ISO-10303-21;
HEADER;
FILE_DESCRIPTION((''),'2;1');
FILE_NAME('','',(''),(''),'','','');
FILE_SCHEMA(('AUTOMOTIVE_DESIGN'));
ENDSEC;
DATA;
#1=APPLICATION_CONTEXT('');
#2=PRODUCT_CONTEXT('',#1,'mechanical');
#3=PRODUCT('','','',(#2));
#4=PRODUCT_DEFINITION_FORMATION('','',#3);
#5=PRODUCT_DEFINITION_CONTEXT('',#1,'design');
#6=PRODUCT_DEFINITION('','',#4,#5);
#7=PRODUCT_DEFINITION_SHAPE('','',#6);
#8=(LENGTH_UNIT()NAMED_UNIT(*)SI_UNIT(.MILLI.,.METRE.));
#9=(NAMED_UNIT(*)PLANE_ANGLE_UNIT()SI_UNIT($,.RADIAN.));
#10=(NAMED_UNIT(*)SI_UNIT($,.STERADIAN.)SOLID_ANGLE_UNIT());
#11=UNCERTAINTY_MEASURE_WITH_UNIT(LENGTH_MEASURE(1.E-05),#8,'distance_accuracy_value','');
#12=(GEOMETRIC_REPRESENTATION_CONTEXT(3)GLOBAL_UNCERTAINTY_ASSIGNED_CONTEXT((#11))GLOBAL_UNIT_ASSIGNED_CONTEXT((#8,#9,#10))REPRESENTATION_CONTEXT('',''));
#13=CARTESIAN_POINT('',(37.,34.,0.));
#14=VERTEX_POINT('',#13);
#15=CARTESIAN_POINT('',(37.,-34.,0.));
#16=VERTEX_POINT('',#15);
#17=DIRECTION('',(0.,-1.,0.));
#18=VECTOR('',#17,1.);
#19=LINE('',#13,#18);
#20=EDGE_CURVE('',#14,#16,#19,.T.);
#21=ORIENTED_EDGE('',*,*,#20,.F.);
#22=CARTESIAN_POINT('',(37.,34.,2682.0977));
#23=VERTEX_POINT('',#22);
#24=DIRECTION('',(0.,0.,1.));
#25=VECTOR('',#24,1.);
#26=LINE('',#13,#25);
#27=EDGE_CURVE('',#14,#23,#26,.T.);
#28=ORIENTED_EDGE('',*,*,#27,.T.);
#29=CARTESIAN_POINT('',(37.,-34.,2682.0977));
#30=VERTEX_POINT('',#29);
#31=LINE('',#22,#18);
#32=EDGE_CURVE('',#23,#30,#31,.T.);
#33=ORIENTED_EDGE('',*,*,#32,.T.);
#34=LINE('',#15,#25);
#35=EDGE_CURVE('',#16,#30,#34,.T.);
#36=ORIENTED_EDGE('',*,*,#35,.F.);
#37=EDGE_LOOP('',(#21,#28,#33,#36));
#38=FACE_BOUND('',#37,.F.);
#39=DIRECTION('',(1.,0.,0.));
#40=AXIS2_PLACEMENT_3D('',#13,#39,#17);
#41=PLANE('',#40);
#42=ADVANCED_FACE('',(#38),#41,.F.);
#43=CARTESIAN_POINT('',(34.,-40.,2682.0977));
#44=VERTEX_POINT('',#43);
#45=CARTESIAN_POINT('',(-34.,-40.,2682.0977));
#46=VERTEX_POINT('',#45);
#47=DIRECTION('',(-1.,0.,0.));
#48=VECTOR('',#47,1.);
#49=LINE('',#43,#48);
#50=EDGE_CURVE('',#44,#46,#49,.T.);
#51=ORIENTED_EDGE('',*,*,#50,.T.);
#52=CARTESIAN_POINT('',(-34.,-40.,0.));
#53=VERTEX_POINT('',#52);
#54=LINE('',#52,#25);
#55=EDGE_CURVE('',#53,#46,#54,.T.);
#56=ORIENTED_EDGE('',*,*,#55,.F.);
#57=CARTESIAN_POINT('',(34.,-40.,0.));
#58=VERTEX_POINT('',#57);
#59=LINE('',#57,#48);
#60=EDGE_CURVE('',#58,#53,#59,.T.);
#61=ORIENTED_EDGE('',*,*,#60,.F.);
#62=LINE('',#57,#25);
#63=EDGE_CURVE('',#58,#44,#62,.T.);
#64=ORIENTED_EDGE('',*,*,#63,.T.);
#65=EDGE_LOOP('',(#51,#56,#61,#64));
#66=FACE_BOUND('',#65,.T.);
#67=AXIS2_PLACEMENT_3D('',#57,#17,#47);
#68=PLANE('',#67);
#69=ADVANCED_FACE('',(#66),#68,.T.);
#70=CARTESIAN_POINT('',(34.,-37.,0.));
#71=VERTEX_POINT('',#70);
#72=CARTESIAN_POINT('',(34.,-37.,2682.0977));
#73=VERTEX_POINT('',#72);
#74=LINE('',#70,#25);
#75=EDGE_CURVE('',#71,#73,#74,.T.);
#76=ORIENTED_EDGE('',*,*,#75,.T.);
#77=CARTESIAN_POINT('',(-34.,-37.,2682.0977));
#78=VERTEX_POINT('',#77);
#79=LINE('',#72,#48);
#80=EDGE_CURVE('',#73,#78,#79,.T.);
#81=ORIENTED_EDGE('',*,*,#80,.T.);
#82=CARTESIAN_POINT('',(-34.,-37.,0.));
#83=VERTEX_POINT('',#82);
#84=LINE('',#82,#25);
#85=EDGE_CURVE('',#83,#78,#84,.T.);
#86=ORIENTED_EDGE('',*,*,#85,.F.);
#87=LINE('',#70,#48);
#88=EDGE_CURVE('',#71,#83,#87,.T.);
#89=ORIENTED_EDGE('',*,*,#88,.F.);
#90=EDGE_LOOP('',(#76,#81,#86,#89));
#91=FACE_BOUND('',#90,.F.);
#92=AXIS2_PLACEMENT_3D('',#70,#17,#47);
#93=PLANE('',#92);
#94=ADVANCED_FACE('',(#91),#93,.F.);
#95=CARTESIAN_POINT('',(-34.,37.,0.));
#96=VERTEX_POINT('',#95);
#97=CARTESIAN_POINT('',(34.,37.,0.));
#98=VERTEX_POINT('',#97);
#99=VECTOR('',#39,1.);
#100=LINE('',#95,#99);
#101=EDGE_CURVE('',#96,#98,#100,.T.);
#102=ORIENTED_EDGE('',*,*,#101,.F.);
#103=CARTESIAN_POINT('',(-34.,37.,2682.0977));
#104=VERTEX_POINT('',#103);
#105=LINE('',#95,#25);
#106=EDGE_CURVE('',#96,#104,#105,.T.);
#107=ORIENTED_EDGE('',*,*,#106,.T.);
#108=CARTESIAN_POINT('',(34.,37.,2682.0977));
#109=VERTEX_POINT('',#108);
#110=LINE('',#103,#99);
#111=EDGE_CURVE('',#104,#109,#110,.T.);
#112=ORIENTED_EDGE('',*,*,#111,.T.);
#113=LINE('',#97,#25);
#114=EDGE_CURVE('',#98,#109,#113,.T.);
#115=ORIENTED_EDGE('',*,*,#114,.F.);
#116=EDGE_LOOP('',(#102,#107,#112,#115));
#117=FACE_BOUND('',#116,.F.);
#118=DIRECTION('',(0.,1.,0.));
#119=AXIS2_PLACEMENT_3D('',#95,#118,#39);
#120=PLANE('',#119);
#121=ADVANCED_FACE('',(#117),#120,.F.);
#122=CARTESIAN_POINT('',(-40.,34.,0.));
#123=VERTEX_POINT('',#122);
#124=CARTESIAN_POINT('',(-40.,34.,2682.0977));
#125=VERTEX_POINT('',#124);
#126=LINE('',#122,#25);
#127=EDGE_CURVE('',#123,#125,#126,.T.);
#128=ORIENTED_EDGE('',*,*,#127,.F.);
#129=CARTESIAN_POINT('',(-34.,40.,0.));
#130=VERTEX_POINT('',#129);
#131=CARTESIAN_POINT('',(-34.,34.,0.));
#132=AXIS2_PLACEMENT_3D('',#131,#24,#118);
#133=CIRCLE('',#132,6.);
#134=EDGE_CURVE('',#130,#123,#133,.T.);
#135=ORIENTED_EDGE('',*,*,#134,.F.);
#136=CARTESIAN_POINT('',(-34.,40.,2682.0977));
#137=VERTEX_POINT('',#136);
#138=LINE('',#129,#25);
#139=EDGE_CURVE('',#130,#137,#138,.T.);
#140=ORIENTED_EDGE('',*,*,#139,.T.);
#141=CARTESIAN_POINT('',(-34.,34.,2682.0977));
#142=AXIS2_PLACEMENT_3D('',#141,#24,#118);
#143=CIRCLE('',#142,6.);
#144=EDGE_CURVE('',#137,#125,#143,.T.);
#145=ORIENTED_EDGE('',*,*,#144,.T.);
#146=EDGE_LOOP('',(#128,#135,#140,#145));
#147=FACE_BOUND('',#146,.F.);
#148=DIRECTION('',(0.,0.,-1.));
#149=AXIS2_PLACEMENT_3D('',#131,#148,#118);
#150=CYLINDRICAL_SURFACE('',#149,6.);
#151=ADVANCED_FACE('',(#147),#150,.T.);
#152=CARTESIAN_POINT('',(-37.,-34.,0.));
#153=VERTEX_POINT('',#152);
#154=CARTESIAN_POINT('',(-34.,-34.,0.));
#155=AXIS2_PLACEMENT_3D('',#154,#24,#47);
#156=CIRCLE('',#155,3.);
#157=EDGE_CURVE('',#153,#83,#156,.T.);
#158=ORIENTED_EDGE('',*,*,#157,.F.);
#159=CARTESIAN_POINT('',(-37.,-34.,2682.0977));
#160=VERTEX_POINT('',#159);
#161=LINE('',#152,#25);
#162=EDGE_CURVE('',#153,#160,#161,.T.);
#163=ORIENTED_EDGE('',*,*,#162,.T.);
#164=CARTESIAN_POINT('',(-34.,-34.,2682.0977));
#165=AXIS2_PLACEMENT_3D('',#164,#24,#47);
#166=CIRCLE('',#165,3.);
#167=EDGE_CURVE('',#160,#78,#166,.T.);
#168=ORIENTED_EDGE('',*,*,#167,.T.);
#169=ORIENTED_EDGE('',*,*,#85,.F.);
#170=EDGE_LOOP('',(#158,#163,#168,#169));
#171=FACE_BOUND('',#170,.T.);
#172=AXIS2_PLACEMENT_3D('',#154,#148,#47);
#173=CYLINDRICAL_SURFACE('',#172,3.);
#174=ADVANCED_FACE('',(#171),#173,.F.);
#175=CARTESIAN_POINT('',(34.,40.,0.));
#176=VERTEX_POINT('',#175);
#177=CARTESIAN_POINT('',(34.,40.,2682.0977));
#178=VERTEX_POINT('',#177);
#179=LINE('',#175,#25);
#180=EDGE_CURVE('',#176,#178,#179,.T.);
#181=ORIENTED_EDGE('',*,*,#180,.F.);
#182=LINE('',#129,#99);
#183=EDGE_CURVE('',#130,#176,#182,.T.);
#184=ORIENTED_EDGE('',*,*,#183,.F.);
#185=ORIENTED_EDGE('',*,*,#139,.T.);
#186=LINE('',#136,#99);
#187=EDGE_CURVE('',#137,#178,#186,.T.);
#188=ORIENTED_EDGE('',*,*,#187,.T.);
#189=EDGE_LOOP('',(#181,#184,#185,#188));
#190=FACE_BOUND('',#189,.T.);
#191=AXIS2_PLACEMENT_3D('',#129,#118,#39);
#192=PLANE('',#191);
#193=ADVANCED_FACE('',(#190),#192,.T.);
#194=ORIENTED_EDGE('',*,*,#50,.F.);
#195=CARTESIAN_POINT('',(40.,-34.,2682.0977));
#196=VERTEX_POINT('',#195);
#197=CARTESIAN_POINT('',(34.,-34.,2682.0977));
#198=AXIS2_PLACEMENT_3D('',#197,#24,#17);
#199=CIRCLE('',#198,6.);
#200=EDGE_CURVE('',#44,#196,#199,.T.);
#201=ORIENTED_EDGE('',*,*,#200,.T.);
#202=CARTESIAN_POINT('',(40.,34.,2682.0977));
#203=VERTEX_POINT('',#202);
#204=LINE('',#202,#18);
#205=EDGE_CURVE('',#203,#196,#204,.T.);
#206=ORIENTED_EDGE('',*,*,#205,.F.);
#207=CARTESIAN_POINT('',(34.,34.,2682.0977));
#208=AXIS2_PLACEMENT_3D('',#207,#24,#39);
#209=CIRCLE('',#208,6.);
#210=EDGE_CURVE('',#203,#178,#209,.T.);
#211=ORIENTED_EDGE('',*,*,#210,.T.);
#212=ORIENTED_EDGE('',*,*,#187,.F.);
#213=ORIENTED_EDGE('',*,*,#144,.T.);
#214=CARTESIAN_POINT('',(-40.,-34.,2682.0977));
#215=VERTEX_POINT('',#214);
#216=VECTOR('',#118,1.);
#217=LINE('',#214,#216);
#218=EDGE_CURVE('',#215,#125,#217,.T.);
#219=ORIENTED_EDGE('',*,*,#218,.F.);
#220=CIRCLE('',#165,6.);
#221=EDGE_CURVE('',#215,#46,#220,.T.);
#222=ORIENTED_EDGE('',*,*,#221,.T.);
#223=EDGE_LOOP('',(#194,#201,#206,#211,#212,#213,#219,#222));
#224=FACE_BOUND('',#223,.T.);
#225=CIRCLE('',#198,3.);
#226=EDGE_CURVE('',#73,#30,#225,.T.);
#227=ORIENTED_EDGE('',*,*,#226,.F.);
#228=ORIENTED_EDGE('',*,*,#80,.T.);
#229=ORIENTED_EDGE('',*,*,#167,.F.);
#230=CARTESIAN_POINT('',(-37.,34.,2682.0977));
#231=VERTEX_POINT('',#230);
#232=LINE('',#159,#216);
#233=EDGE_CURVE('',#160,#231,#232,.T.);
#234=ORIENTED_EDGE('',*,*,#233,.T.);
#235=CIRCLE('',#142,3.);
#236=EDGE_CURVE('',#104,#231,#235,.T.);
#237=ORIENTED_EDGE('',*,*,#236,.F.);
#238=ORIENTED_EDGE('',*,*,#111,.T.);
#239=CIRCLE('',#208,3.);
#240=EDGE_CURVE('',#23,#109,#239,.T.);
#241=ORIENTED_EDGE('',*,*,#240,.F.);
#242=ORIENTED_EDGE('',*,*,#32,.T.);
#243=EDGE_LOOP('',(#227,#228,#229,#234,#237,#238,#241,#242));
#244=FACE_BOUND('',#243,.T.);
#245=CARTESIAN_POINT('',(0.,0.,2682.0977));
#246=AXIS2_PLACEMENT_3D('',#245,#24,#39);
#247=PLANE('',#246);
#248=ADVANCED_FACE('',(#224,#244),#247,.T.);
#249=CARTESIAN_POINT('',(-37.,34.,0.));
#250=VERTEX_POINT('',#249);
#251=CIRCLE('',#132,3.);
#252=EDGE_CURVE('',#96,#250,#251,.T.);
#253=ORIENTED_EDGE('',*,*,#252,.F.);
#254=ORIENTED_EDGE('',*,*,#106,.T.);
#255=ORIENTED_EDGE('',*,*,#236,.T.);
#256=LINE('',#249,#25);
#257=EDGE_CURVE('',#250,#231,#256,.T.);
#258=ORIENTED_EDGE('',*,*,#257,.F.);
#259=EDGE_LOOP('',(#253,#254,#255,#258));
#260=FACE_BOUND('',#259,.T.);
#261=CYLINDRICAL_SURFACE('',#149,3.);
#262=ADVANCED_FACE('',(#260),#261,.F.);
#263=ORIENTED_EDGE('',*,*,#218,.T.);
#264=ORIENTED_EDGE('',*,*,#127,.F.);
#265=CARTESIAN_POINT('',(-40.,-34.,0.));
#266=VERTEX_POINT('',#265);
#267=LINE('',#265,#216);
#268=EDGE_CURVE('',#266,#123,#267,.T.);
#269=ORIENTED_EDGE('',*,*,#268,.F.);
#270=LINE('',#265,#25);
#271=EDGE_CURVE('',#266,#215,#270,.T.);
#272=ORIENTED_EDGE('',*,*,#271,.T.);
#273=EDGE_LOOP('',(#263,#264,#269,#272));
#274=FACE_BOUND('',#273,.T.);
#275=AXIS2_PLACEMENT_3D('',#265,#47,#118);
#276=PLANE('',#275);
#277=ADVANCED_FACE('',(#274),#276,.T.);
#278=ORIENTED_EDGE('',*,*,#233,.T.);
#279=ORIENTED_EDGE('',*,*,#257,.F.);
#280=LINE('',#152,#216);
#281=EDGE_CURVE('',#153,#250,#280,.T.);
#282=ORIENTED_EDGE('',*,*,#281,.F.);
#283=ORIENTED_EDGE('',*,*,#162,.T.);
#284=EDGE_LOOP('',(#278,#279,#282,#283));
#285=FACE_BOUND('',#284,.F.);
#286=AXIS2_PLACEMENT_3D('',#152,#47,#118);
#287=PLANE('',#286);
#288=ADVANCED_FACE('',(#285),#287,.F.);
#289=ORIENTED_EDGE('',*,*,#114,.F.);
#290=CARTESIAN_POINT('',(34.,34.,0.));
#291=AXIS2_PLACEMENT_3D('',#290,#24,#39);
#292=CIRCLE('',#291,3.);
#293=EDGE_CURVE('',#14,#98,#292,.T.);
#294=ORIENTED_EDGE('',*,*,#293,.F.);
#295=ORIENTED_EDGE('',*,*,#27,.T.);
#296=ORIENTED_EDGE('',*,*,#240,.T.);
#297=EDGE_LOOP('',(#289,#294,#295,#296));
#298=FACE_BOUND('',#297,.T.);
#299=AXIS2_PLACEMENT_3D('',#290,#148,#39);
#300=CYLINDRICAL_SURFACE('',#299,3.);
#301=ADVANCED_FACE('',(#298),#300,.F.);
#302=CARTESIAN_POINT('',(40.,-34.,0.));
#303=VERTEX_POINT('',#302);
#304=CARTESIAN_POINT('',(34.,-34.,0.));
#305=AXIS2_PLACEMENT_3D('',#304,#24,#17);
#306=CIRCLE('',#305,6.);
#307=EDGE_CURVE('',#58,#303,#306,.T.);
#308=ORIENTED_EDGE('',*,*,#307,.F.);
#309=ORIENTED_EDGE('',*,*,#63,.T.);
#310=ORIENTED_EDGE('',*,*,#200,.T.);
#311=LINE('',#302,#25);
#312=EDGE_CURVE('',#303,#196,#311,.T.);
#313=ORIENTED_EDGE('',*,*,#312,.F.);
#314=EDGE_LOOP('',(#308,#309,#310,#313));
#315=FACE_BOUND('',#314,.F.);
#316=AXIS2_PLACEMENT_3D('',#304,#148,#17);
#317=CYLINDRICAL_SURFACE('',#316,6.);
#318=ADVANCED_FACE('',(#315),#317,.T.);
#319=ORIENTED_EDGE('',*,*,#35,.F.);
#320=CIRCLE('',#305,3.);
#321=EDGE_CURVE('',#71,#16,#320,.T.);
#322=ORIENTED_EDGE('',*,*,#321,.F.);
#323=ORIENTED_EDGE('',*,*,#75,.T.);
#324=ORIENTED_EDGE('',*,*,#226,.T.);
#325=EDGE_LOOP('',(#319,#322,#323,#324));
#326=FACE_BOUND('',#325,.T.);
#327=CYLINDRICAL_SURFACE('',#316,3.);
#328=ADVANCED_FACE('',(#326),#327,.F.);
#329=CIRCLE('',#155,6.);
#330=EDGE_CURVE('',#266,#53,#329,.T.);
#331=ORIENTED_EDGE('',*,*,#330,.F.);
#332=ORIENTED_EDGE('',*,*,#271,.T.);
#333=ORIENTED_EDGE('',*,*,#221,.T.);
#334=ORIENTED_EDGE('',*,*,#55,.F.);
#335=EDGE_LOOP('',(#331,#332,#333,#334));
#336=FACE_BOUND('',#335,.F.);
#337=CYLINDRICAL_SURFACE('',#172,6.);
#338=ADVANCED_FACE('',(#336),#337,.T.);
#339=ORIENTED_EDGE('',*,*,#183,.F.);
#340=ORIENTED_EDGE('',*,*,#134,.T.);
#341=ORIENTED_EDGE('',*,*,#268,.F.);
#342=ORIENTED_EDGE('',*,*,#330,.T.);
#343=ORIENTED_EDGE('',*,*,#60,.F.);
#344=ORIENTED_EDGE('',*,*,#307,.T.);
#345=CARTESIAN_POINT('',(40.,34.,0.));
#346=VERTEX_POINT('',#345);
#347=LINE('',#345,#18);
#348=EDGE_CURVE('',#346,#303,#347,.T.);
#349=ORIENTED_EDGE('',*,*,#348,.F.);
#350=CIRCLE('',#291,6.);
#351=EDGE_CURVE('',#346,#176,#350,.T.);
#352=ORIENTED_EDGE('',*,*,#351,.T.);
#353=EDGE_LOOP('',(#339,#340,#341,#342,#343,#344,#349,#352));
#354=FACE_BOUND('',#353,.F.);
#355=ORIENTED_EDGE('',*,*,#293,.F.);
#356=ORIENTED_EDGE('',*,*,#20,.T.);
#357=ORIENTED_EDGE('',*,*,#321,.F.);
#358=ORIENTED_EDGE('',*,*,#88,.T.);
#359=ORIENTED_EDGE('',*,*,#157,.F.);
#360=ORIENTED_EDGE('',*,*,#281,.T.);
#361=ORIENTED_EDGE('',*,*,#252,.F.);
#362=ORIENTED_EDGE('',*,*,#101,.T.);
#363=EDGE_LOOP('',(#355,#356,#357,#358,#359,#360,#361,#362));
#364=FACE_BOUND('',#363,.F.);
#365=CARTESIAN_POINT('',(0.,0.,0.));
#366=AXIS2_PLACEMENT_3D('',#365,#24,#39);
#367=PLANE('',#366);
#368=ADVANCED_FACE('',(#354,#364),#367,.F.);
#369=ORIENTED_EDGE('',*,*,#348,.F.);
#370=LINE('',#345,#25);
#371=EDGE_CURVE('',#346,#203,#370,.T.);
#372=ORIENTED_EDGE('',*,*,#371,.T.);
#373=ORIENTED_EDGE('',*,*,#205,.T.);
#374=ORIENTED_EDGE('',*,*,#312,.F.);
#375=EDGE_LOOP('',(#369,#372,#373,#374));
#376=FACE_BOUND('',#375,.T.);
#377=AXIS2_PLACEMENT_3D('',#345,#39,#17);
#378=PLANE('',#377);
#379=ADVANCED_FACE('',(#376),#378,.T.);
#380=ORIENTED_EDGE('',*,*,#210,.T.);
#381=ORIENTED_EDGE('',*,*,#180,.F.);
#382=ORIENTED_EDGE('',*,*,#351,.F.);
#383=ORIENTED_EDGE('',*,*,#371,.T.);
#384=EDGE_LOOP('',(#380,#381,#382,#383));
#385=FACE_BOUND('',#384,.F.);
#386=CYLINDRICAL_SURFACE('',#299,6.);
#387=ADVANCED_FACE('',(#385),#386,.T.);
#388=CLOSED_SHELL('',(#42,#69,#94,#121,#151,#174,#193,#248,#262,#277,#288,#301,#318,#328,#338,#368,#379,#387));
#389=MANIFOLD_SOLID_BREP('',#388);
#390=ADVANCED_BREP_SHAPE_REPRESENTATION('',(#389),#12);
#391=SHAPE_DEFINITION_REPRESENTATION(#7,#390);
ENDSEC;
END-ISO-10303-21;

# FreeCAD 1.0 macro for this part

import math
import FreeCAD as App
import Part
import Sketcher

V = App.Vector

doc = App.newDocument("Part")
body = doc.addObject("PartDesign::Body", "Body")

sketch1 = body.newObject("Sketcher::SketchObject", "Sketch")
sketch1.AttachmentSupport = (doc.getObject("XY_Plane"), [""])
sketch1.MapMode = "FlatFace"
sketch1.addGeometry(Part.LineSegment(V(-40, 34, 0), V(-40, -34, 0)), False)
sketch1.addGeometry(Part.ArcOfCircle(Part.Circle(V(-34, -34, 0), V(0, 0, 1), 6), math.radians(180), math.radians(270)), False)
sketch1.addGeometry(Part.LineSegment(V(-34, -40, 0), V(34, -40, 0)), False)
sketch1.addGeometry(Part.ArcOfCircle(Part.Circle(V(34, -34, 0), V(0, 0, 1), 6), math.radians(-90), math.radians(0)), False)
sketch1.addGeometry(Part.LineSegment(V(40, -34, 0), V(40, 34, 0)), False)
sketch1.addGeometry(Part.ArcOfCircle(Part.Circle(V(34, 34, 0), V(0, 0, 1), 6), math.radians(0), math.radians(90)), False)
sketch1.addGeometry(Part.LineSegment(V(34, 40, 0), V(-34, 40, 0)), False)
sketch1.addGeometry(Part.ArcOfCircle(Part.Circle(V(-34, 34, 0), V(0, 0, 1), 6), math.radians(90), math.radians(180)), False)
sketch1.addGeometry(Part.ArcOfCircle(Part.Circle(V(-34, 34, 0), V(0, 0, 1), 3), math.radians(90), math.radians(180)), False)
sketch1.addGeometry(Part.LineSegment(V(-34, 37, 0), V(34, 37, 0)), False)
sketch1.addGeometry(Part.ArcOfCircle(Part.Circle(V(34, 34, 0), V(0, 0, 1), 3), math.radians(0), math.radians(90)), False)
sketch1.addGeometry(Part.LineSegment(V(37, 34, 0), V(37, -34, 0)), False)
sketch1.addGeometry(Part.ArcOfCircle(Part.Circle(V(34, -34, 0), V(0, 0, 1), 3), math.radians(-90), math.radians(0)), False)
sketch1.addGeometry(Part.LineSegment(V(34, -37, 0), V(-34, -37, 0)), False)
sketch1.addGeometry(Part.ArcOfCircle(Part.Circle(V(-34, -34, 0), V(0, 0, 1), 3), math.radians(180), math.radians(270)), False)
sketch1.addGeometry(Part.LineSegment(V(-37, -34, 0), V(-37, 34, 0)), False)
sketch1.addConstraint(Sketcher.Constraint("Tangent", 0, 2, 1, 1))
sketch1.addConstraint(Sketcher.Constraint("Tangent", 1, 2, 2, 1))
sketch1.addConstraint(Sketcher.Constraint("Tangent", 2, 2, 3, 1))
sketch1.addConstraint(Sketcher.Constraint("Tangent", 3, 2, 4, 1))
sketch1.addConstraint(Sketcher.Constraint("Tangent", 4, 2, 5, 1))
sketch1.addConstraint(Sketcher.Constraint("Tangent", 5, 2, 6, 1))
sketch1.addConstraint(Sketcher.Constraint("Tangent", 6, 2, 7, 1))
sketch1.addConstraint(Sketcher.Constraint("Tangent", 7, 2, 0, 1))
sketch1.addConstraint(Sketcher.Constraint("Tangent", 8, 1, 9, 1))
sketch1.addConstraint(Sketcher.Constraint("Tangent", 9, 2, 10, 2))
sketch1.addConstraint(Sketcher.Constraint("Tangent", 10, 1, 11, 1))
sketch1.addConstraint(Sketcher.Constraint("Tangent", 11, 2, 12, 2))
sketch1.addConstraint(Sketcher.Constraint("Tangent", 12, 1, 13, 1))
sketch1.addConstraint(Sketcher.Constraint("Tangent", 13, 2, 14, 2))
sketch1.addConstraint(Sketcher.Constraint("Tangent", 14, 1, 15, 1))
sketch1.addConstraint(Sketcher.Constraint("Tangent", 15, 2, 8, 2))
sketch1.addConstraint(Sketcher.Constraint("Vertical", 0))
sketch1.addConstraint(Sketcher.Constraint("Horizontal", 2))
sketch1.addConstraint(Sketcher.Constraint("Vertical", 4))
sketch1.addConstraint(Sketcher.Constraint("Horizontal", 6))
sketch1.addConstraint(Sketcher.Constraint("Horizontal", 9))
sketch1.addConstraint(Sketcher.Constraint("Vertical", 11))
sketch1.addConstraint(Sketcher.Constraint("Horizontal", 13))
sketch1.addConstraint(Sketcher.Constraint("Vertical", 15))
sketch1.addConstraint(Sketcher.Constraint("Coincident", 8, 3, 7, 3))
sketch1.addConstraint(Sketcher.Constraint("Coincident", 10, 3, 5, 3))
sketch1.addConstraint(Sketcher.Constraint("Coincident", 12, 3, 3, 3))
sketch1.addConstraint(Sketcher.Constraint("Equal", 1, 3))
sketch1.addConstraint(Sketcher.Constraint("Equal", 3, 5))
sketch1.addConstraint(Sketcher.Constraint("Equal", 5, 7))
sketch1.addConstraint(Sketcher.Constraint("Equal", 12, 14))
sketch1.addConstraint(Sketcher.Constraint("Symmetric", 1, 3, 5, 3, -1, 1))
sketch1.addConstraint(Sketcher.Constraint("Equal", 13, 0))
sketch1.addConstraint(Sketcher.Constraint("Radius", 1, 6.0))
sketch1.addConstraint(Sketcher.Constraint("Radius", 8, 3.0))
sketch1.addConstraint(Sketcher.Constraint("DistanceX", 0, 2, -1, 1, 40.0))
pad1 = body.newObject("PartDesign::Pad", "Pad")
pad1.Profile = sketch1
pad1.Length = 2682.0977

doc.recompute()
